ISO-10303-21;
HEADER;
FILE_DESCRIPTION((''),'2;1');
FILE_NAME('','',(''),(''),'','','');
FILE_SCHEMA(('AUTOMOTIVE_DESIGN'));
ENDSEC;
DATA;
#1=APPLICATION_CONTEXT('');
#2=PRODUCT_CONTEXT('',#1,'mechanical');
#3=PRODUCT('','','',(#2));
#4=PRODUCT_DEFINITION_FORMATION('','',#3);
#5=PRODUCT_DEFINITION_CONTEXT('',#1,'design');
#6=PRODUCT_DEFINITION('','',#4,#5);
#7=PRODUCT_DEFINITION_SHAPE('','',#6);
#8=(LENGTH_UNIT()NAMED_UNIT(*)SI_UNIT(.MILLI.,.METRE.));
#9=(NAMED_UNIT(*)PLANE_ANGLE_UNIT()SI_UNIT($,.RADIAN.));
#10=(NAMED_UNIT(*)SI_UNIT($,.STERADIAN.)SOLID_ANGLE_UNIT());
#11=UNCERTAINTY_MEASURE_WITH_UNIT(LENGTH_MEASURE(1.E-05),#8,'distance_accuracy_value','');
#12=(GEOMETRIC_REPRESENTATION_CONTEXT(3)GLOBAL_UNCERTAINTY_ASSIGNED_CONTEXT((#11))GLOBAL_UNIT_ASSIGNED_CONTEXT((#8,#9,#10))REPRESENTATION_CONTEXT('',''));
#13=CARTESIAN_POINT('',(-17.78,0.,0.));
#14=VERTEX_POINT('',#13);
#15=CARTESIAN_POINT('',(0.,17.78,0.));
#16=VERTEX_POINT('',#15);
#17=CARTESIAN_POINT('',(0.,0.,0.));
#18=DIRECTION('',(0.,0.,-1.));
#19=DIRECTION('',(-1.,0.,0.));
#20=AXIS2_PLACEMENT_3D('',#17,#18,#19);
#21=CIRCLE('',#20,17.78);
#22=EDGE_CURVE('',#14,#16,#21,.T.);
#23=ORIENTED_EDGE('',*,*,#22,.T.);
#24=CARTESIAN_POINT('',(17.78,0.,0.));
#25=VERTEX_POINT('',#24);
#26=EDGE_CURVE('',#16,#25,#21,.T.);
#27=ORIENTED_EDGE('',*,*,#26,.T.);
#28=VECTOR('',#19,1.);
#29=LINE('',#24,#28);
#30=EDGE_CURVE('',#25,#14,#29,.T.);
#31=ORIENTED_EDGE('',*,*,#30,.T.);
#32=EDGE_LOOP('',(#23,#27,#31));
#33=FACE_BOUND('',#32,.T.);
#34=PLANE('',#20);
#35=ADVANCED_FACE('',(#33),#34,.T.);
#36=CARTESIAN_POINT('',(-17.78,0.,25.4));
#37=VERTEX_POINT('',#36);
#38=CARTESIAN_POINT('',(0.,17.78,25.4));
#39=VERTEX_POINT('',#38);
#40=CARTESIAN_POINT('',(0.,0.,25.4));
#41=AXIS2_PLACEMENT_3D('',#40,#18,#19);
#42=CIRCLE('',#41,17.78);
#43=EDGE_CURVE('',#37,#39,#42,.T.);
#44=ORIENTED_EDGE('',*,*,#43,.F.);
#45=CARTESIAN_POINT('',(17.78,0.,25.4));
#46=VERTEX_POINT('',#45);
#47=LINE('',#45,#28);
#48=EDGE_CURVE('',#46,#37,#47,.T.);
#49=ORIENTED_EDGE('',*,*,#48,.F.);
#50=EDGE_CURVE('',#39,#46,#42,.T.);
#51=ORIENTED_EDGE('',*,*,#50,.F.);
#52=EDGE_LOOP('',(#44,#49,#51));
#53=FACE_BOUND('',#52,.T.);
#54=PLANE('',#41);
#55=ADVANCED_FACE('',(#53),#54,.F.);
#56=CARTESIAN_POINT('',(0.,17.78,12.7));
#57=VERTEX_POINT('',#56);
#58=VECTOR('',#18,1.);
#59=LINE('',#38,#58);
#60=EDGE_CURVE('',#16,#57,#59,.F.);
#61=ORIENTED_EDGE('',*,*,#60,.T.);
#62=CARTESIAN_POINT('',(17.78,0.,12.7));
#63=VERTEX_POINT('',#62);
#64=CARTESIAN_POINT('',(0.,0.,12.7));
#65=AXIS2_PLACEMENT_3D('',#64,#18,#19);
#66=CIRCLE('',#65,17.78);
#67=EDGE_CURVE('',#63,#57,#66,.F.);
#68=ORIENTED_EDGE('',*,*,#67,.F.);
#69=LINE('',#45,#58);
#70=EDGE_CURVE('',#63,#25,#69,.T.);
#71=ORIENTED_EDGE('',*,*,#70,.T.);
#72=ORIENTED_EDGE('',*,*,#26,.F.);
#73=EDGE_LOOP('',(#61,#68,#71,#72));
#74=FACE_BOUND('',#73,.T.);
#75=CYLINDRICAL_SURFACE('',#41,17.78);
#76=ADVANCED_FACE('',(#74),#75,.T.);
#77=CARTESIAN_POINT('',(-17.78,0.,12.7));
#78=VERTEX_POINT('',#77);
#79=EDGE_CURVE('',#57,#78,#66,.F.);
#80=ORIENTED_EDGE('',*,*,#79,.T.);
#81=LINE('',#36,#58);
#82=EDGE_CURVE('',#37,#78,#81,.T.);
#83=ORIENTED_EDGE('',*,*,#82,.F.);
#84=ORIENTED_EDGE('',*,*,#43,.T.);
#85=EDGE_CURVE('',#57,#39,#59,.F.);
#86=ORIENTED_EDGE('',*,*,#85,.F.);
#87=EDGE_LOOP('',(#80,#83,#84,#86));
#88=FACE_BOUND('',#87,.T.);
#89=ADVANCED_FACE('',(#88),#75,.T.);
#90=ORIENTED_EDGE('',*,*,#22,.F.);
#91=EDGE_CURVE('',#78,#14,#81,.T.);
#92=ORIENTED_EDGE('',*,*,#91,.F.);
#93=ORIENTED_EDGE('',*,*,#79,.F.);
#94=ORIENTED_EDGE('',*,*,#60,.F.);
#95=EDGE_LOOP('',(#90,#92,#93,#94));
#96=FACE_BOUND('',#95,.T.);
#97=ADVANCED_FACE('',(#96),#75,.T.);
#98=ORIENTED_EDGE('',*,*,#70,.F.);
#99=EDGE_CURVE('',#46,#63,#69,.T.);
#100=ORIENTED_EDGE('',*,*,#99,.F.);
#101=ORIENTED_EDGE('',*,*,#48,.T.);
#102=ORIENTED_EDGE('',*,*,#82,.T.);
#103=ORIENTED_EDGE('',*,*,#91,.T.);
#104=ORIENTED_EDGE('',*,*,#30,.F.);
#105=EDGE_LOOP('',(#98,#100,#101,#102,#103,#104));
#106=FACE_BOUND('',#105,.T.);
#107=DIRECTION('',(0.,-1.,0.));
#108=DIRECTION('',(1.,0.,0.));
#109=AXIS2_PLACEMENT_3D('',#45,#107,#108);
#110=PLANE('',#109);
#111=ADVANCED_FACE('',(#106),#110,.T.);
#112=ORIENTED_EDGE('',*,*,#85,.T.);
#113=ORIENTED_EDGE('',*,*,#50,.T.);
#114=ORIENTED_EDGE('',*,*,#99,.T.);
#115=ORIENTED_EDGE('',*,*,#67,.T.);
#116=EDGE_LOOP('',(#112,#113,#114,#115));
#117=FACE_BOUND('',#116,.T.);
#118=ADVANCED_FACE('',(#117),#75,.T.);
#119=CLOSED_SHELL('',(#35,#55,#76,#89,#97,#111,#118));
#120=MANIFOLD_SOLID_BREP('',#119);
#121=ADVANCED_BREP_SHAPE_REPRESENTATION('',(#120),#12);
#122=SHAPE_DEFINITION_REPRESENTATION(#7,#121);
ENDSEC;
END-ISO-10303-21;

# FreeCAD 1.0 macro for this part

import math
import FreeCAD as App
import Part
import Sketcher
from FreeCAD import Vector
Q = App.Units.Quantity

doc = App.newDocument("Part")
body = doc.addObject("PartDesign::Body", "Body")

# Sketch on XY plane
sketch1 = body.newObject("Sketcher::SketchObject", "Sketch")
sketch1.AttachmentSupport = (doc.getObject("XY_Plane"), [""])
sketch1.MapMode = "FlatFace"
sketch1.addGeometry(Part.LineSegment(Vector(-18, 0, 0), Vector(18, 0, 0)), False)
sketch1.addGeometry(Part.ArcOfCircle(Part.Circle(Vector(0, 0, 0), Vector(0, 0, 1), 18), math.radians(0), math.radians(180)), False)
sketch1.addConstraint(Sketcher.Constraint("Coincident", 0, 1, 1, 2))
sketch1.addConstraint(Sketcher.Constraint("Coincident", 1, 1, 0, 2))
sketch1.addConstraint(Sketcher.Constraint("Horizontal", 0))
sketch1.addConstraint(Sketcher.Constraint("Coincident", 1, 3, -1, 1))
sketch1.addConstraint(Sketcher.Constraint("PointOnObject", 0, 1, -1))
sketch1.addConstraint(Sketcher.Constraint("Radius", 1, Q("0.7 in")))
pad1 = body.newObject("PartDesign::Pad", "Pad")
pad1.Profile = sketch1
pad1.Length = Q("1 in")

doc.recompute()
